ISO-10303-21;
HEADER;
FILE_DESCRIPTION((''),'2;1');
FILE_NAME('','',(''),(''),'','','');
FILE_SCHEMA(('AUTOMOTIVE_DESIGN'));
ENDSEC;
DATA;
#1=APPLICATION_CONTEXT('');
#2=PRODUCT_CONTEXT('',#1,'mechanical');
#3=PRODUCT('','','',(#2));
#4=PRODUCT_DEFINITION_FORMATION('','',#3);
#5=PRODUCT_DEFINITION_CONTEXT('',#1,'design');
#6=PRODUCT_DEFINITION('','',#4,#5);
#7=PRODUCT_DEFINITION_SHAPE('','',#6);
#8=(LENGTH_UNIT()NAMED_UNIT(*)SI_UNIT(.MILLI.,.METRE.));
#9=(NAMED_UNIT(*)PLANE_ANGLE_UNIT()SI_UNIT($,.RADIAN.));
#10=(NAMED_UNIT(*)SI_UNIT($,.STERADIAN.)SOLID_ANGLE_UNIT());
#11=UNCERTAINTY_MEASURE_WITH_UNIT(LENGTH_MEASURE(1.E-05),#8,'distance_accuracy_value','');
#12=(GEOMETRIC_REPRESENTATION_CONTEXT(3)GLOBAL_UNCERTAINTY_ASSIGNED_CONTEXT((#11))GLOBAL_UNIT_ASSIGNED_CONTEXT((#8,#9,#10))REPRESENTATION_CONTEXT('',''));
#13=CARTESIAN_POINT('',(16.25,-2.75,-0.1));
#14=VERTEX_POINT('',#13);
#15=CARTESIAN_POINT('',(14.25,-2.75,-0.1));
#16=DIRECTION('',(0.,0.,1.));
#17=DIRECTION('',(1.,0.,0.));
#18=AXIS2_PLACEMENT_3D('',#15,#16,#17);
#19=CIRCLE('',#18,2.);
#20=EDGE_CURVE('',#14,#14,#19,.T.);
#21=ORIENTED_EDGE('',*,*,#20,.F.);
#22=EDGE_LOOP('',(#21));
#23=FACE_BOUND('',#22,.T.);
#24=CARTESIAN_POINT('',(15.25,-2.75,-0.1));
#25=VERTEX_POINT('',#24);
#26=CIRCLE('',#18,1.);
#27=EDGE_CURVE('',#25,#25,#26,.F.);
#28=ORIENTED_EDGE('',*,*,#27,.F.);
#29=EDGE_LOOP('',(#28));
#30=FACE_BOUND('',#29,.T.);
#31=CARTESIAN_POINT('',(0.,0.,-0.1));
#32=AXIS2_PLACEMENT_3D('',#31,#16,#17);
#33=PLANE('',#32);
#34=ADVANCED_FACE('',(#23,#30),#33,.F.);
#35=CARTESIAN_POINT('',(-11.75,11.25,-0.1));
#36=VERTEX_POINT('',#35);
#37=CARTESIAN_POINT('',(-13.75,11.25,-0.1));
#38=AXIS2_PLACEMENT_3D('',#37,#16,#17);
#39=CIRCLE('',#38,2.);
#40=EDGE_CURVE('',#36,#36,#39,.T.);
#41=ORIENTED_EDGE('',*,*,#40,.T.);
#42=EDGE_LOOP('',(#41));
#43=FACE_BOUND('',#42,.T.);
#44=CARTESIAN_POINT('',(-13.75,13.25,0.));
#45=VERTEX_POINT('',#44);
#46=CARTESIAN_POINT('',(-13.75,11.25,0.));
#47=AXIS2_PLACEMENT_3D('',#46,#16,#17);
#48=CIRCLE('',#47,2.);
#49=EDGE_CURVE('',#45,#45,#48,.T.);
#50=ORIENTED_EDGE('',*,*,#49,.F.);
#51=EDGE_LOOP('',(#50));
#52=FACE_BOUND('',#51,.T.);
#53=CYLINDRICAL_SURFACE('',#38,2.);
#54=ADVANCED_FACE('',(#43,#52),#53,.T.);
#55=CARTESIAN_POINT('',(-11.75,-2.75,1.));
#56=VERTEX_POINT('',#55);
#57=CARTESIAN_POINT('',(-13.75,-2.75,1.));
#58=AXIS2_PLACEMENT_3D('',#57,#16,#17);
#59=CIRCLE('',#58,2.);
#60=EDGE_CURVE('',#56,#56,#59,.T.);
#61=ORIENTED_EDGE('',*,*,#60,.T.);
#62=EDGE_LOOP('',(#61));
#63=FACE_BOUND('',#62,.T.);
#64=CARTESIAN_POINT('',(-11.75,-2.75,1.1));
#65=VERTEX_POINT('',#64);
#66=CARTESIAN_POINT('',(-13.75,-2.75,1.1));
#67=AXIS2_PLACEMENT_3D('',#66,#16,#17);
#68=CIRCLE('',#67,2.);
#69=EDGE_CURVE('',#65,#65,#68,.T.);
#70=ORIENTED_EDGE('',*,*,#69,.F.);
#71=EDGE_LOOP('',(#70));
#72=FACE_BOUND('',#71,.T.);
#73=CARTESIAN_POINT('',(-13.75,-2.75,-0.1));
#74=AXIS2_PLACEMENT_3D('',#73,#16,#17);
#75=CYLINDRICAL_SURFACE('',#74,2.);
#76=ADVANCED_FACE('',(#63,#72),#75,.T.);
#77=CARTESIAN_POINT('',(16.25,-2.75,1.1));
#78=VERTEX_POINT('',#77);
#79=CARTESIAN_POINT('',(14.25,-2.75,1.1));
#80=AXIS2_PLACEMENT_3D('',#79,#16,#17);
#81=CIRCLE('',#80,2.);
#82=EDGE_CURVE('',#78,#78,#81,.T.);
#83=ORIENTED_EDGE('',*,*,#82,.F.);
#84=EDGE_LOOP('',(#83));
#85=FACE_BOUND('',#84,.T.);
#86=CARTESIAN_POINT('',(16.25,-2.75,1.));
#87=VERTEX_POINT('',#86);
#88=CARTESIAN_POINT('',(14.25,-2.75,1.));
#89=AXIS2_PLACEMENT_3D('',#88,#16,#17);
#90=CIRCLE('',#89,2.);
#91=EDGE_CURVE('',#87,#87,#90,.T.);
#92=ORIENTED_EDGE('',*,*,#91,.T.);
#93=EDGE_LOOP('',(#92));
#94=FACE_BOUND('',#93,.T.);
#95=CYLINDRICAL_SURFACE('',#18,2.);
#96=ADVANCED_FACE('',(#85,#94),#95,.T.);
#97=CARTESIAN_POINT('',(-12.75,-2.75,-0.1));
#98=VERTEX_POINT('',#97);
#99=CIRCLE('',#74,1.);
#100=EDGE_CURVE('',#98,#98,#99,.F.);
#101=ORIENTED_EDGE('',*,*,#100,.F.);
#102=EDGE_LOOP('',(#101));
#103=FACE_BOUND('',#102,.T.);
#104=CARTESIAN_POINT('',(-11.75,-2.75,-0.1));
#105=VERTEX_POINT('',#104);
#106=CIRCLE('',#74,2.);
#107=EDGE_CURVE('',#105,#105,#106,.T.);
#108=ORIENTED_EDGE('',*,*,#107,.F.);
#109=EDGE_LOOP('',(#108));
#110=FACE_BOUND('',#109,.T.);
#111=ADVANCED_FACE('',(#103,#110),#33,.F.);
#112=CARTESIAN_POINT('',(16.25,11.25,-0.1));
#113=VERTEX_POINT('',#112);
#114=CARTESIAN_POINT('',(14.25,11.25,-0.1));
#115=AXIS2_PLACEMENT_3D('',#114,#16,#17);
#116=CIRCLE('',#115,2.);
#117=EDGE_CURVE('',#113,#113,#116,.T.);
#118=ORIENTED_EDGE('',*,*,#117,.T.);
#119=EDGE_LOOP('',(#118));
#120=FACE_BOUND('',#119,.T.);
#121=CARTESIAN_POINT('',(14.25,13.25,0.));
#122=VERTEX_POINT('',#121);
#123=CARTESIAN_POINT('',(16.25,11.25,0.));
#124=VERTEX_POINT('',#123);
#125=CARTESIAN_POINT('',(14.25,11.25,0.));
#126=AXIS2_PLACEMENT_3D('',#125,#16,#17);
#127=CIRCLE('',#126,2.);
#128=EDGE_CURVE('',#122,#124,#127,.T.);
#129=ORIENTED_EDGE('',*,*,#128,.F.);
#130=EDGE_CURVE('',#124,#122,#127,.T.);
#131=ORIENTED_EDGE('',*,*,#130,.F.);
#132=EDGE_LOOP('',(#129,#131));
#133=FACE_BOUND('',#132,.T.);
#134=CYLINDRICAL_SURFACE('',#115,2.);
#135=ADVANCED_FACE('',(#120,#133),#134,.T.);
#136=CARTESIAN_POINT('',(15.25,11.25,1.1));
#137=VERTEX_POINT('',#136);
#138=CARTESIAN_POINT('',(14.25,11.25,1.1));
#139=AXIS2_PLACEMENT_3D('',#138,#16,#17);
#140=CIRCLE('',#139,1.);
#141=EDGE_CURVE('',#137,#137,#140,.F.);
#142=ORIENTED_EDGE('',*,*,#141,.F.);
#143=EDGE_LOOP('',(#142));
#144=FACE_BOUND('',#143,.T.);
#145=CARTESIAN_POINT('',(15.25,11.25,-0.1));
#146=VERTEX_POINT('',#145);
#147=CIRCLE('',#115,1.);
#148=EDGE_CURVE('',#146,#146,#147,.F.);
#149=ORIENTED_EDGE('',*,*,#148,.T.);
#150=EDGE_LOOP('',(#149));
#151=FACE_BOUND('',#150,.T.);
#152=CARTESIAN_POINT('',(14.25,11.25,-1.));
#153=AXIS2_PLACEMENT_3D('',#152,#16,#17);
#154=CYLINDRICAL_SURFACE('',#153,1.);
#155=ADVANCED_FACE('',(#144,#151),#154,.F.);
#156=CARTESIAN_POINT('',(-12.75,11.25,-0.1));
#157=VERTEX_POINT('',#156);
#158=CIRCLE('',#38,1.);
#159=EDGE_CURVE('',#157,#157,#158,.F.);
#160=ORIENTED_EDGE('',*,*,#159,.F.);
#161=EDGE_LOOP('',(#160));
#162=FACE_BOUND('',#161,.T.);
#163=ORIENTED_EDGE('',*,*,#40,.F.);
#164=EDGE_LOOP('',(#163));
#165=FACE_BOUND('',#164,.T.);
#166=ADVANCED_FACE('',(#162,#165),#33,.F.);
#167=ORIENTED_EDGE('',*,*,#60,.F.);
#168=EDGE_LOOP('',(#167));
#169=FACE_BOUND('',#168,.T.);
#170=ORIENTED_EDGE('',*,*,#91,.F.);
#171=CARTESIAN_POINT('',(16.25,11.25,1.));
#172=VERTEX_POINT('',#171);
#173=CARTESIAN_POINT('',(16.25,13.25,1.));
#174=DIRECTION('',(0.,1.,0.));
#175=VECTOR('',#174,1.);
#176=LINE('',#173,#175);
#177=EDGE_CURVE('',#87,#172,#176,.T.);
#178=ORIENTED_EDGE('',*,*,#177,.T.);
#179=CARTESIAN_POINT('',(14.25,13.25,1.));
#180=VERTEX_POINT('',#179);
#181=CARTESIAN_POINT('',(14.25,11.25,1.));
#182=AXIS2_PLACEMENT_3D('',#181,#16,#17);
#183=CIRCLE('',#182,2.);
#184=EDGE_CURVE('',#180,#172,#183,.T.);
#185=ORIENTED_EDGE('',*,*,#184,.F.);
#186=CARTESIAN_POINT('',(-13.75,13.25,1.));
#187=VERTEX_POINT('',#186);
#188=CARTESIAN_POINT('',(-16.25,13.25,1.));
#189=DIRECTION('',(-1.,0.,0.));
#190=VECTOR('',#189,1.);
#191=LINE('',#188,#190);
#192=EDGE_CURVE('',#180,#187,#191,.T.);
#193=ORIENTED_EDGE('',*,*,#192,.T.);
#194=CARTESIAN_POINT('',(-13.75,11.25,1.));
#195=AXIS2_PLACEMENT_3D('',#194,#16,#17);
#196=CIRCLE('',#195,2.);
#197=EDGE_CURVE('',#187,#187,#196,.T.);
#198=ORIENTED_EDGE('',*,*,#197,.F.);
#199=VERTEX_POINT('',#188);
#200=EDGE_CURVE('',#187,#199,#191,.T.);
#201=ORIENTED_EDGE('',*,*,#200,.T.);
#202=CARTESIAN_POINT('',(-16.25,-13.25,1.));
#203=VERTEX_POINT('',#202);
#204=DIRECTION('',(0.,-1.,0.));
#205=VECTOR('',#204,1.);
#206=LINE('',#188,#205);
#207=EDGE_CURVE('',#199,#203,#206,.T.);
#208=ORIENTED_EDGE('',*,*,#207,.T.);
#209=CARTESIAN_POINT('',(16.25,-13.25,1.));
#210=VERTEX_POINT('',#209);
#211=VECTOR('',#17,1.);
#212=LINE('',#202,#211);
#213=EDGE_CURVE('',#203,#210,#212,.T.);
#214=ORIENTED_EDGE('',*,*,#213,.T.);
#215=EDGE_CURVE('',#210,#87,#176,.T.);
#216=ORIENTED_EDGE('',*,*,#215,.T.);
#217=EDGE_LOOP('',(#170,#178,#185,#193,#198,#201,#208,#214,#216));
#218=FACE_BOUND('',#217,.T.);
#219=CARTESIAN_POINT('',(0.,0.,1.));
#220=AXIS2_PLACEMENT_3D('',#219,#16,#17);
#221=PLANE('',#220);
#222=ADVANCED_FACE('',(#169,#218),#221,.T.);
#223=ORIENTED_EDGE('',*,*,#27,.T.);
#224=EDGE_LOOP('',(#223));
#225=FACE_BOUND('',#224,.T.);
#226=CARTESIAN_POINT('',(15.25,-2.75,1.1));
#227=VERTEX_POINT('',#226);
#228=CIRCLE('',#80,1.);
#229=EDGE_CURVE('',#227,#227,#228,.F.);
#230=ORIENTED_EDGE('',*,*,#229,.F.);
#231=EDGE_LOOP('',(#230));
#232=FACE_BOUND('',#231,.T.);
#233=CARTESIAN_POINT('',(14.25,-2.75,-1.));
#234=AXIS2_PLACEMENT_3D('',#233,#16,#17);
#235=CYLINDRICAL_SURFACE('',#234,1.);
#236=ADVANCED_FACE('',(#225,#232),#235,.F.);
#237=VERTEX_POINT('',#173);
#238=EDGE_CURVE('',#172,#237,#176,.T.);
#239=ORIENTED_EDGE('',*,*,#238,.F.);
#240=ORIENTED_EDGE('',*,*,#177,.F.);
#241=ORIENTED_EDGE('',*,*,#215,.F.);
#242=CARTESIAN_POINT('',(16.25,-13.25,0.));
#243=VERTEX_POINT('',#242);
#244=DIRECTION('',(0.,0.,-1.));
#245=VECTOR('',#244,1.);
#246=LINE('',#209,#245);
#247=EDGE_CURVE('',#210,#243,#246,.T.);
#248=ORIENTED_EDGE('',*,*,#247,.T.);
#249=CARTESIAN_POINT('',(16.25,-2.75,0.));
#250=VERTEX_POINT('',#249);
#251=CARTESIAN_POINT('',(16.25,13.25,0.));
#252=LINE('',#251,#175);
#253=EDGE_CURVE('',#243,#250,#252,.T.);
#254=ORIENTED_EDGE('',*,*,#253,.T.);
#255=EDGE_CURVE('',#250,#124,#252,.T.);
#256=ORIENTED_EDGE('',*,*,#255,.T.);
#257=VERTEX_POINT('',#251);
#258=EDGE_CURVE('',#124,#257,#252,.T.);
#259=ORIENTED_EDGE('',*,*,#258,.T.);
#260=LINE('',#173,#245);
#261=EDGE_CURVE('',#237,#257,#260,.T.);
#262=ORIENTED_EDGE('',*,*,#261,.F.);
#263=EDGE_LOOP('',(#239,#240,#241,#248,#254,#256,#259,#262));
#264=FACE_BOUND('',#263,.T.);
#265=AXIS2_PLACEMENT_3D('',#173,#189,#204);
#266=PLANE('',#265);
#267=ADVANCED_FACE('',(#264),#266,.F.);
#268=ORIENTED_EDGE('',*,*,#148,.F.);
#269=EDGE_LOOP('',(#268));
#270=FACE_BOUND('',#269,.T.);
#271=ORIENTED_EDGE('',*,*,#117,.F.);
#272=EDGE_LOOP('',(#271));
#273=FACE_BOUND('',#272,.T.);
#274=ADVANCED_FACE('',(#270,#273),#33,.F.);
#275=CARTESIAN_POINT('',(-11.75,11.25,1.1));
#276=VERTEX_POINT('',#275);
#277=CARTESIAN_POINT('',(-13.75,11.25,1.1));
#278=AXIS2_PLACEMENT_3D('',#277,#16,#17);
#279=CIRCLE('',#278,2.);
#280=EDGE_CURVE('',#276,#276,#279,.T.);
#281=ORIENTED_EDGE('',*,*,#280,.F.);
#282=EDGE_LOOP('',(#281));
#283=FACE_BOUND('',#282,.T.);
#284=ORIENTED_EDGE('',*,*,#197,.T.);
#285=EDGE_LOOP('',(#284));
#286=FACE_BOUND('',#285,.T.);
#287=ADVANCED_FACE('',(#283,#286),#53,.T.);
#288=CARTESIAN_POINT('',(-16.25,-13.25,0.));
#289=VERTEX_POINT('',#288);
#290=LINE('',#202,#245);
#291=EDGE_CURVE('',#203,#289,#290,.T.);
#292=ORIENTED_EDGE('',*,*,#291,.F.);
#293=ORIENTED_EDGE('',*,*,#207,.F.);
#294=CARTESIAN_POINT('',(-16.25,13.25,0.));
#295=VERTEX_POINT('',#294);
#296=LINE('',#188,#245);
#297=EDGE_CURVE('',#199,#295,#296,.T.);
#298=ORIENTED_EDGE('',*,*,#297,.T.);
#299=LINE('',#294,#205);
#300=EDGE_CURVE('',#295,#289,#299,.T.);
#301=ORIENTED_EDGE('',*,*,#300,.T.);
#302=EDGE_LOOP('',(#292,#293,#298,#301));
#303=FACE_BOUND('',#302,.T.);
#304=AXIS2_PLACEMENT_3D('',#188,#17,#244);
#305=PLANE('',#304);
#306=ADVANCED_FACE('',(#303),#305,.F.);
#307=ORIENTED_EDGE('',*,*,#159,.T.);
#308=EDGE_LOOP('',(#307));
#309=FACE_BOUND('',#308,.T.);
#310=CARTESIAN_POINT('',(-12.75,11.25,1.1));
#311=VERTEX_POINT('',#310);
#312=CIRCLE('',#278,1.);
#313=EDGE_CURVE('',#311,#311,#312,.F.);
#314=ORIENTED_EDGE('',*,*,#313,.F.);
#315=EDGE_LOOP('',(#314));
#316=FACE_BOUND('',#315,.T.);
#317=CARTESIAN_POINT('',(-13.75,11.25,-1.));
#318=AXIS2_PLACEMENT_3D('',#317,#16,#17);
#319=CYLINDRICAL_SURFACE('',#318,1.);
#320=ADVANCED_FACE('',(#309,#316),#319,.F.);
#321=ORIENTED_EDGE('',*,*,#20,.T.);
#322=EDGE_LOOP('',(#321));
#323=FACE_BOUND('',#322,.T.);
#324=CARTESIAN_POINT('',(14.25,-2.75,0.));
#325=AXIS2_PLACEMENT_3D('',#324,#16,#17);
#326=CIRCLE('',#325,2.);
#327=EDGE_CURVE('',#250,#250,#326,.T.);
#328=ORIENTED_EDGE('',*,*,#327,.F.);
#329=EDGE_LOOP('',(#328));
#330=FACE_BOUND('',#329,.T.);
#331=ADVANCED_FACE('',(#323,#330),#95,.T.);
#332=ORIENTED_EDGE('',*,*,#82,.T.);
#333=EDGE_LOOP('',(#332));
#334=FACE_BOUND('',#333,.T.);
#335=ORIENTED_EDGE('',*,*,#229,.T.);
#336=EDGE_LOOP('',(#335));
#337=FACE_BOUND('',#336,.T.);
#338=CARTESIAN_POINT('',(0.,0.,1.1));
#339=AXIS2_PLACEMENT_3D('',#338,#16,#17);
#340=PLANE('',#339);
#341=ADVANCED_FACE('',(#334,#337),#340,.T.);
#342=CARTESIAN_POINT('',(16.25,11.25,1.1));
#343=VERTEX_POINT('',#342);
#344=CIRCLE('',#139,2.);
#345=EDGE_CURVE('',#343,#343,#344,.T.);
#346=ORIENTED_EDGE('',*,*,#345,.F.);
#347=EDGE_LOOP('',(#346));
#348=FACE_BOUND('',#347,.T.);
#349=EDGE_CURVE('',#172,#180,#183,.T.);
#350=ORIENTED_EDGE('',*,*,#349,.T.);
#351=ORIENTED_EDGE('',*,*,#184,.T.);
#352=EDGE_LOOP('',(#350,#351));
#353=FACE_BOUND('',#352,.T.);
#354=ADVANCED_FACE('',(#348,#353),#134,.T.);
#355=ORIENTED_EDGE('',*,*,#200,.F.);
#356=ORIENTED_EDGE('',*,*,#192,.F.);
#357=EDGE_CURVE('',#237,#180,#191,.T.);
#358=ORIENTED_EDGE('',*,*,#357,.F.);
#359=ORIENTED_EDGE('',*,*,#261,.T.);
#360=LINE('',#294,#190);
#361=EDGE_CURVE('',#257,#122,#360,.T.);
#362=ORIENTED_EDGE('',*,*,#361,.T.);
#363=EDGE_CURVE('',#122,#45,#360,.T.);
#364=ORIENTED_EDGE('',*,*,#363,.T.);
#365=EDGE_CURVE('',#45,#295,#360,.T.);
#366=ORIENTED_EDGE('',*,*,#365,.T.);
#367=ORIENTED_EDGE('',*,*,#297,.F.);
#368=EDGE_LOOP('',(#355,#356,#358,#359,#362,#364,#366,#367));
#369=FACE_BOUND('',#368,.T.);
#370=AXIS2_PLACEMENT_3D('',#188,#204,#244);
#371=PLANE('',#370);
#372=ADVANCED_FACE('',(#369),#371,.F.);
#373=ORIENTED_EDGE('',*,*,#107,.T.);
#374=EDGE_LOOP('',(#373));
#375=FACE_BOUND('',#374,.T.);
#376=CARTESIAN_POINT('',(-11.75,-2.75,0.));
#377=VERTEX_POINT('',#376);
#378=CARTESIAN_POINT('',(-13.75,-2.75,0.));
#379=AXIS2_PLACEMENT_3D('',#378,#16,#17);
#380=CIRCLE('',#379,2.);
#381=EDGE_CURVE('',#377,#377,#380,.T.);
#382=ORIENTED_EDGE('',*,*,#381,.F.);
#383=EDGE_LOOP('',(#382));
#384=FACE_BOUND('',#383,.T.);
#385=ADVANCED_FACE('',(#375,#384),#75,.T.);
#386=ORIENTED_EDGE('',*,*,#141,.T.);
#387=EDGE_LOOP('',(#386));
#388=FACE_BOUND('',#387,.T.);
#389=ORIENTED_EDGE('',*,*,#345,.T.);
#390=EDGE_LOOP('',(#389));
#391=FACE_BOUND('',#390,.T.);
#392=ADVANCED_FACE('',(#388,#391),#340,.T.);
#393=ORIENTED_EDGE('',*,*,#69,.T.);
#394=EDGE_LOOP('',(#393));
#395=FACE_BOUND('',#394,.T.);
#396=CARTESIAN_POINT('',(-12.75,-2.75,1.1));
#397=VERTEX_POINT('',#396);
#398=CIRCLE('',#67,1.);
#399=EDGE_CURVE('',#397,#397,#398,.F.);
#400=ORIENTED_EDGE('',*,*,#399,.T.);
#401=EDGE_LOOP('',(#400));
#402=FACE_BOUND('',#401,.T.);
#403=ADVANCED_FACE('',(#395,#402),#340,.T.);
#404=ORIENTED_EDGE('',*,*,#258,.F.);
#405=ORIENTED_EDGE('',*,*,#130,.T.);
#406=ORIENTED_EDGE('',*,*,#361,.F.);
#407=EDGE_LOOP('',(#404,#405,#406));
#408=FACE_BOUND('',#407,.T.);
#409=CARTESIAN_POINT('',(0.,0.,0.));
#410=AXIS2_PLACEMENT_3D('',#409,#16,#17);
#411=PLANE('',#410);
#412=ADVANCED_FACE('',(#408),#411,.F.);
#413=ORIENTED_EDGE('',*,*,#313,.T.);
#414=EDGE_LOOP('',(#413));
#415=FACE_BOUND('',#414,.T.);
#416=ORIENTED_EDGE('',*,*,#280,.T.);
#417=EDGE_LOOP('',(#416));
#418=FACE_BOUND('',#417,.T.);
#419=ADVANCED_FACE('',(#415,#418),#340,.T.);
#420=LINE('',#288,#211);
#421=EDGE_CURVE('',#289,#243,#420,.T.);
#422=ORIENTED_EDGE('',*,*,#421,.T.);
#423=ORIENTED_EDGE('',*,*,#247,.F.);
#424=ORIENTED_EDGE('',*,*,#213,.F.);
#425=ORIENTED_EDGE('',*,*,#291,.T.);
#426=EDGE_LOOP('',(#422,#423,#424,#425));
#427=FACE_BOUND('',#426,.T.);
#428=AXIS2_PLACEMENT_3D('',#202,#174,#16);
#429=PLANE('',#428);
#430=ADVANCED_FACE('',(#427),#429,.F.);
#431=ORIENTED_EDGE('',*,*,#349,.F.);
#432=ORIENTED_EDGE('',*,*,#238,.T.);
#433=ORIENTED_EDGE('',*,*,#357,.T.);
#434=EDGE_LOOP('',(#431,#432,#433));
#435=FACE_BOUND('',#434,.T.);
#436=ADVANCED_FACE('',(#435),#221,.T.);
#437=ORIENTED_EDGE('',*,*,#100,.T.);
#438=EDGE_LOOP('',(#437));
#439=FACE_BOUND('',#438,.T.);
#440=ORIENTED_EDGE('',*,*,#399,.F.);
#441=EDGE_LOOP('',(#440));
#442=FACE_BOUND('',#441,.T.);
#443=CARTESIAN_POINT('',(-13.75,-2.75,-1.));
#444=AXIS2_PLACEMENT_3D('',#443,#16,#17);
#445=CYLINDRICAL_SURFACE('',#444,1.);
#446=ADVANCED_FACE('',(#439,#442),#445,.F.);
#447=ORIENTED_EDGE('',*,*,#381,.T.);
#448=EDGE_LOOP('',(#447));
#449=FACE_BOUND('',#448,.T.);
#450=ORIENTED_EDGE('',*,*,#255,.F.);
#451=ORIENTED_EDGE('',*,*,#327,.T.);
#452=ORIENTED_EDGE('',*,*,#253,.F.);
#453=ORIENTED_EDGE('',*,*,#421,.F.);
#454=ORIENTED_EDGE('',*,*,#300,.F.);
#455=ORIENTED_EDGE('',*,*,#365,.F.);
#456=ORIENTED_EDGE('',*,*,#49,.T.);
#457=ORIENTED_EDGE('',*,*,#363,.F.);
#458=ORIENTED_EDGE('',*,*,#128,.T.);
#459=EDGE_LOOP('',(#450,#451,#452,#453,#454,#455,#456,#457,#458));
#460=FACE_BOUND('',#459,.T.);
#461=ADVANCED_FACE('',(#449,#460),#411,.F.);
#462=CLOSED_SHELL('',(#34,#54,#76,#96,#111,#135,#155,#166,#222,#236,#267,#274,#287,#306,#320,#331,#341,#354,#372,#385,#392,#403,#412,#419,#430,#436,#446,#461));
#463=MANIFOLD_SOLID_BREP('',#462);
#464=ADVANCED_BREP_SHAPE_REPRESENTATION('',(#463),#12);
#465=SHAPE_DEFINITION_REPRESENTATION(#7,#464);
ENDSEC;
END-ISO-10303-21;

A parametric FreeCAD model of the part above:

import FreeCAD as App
import Part
import Sketcher

V = App.Vector
Q = App.Units.Quantity

doc = App.newDocument("Part")
body = doc.addObject("PartDesign::Body", "Body")

sketch1 = doc.addObject("Sketcher::SketchObject", "Sketch")
body.addObject(sketch1)
sketch1.AttachmentSupport = (doc.XY_Plane, [""])
sketch1.MapMode = "FlatFace"
sketch1.addGeometry([
    Part.LineSegment(V(-16, 13, 0), V(-16, -13, 0)),
    Part.LineSegment(V(-16, -13, 0), V(16, -13, 0)),
    Part.LineSegment(V(16, -13, 0), V(16, 13, 0)),
    Part.LineSegment(V(16, 13, 0), V(-16, 13, 0)),
], False)
sketch1.addConstraint([
    Sketcher.Constraint("Coincident", 0, 2, 1, 1),
    Sketcher.Constraint("Coincident", 1, 2, 2, 1),
    Sketcher.Constraint("Coincident", 2, 2, 3, 1),
    Sketcher.Constraint("Coincident", 3, 2, 0, 1),
    Sketcher.Constraint("Vertical", 0),
    Sketcher.Constraint("Horizontal", 1),
    Sketcher.Constraint("Vertical", 2),
    Sketcher.Constraint("Horizontal", 3),
    Sketcher.Constraint("Symmetric", 0, 2, 2, 2, -1, 1),
    Sketcher.Constraint("DistanceX", 1, 1, 1, 2, Q("32.5 mm")),
    Sketcher.Constraint("DistanceY", 0, 2, 0, 1, Q("26.5 mm")),
])
pad1 = doc.addObject("PartDesign::Pad", "Pad")
body.addObject(pad1)
pad1.Profile = sketch1
pad1.Length = 1

sketch2 = doc.addObject("Sketcher::SketchObject", "Sketch001")
body.addObject(sketch2)
sketch2.AttachmentSupport = (doc.XY_Plane, [""])
sketch2.MapMode = "FlatFace"
sketch2.AttachmentOffset = App.Placement(V(0, 0, 1), App.Rotation())
sketch2.addGeometry([
    Part.Circle(V(-13.8, 11.2, 0), V(0, 0, 1), 1),
    Part.Circle(V(-13.8, -2.8, 0), V(0, 0, 1), 1),
    Part.Circle(V(14.2, -2.8, 0), V(0, 0, 1), 1),
    Part.Circle(V(14.2, 11.2, 0), V(0, 0, 1), 1),
], False)
sketch2.addConstraint([
    Sketcher.Constraint("Equal", 0, 1),
    Sketcher.Constraint("Equal", 1, 2),
    Sketcher.Constraint("Equal", 2, 3),
    Sketcher.Constraint("Horizontal", 1, 3, 2, 3),
    Sketcher.Constraint("Horizontal", 0, 3, 3, 3),
    Sketcher.Constraint("Vertical", 0, 3, 1, 3),
    Sketcher.Constraint("Vertical", 2, 3, 3, 3),
    Sketcher.Constraint("Diameter", 0, Q("2 mm")),
    Sketcher.Constraint("DistanceY", 1, 3, 0, 3, Q("14 mm")),
    Sketcher.Constraint("DistanceX", 1, 3, 2, 3, Q("28 mm")),
    Sketcher.Constraint("DistanceX", 0, 3, -1, 1, Q("13.75 mm")),
    Sketcher.Constraint("DistanceY", -1, 1, 0, 3, Q("11.25 mm")),
])
pocket1 = doc.addObject("PartDesign::Pocket", "Pocket")
body.addObject(pocket1)
pocket1.Profile = sketch2
pocket1.Length = 2

sketch3 = doc.addObject("Sketcher::SketchObject", "Sketch002")
body.addObject(sketch3)
sketch3.AttachmentSupport = (doc.XY_Plane, [""])
sketch3.MapMode = "FlatFace"
sketch3.AttachmentOffset = App.Placement(V(0, 0, 1), App.Rotation())
sketch3.addGeometry([
    Part.Circle(V(-13.8, 11.2, 0), V(0, 0, 1), 2),
    Part.Circle(V(-13.8, 11.2, 0), V(0, 0, 1), 1),
    Part.Circle(V(14.2, 11.2, 0), V(0, 0, 1), 2),
    Part.Circle(V(14.2, 11.2, 0), V(0, 0, 1), 1),
    Part.Circle(V(14.2, -2.8, 0), V(0, 0, 1), 2),
    Part.Circle(V(14.2, -2.8, 0), V(0, 0, 1), 1),
    Part.Circle(V(-13.8, -2.8, 0), V(0, 0, 1), 2),
    Part.Circle(V(-13.8, -2.8, 0), V(0, 0, 1), 1),
], False)
sketch3.addConstraint([
    Sketcher.Constraint("Coincident", 1, 3, 0, 3),
    Sketcher.Constraint("Coincident", 3, 3, 2, 3),
    Sketcher.Constraint("Coincident", 5, 3, 4, 3),
    Sketcher.Constraint("Coincident", 7, 3, 6, 3),
    Sketcher.Constraint("Equal", 0, 2),
    Sketcher.Constraint("Equal", 1, 3),
    Sketcher.Constraint("Equal", 2, 4),
    Sketcher.Constraint("Equal", 3, 5),
    Sketcher.Constraint("Equal", 4, 6),
    Sketcher.Constraint("Equal", 5, 7),
    Sketcher.Constraint("Horizontal", 1, 3, 2, 3),
    Sketcher.Constraint("Horizontal", 5, 3, 6, 3),
    Sketcher.Constraint("Vertical", 3, 3, 4, 3),
    Sketcher.Constraint("Vertical", 1, 3, 6, 3),
    Sketcher.Constraint("Diameter", 0, Q("4 mm")),
    Sketcher.Constraint("Diameter", 1, Q("2 mm")),
    Sketcher.Constraint("DistanceX", 0, 3, 2, 3, Q("28 mm")),
    Sketcher.Constraint("DistanceY", 4, 3, 2, 3, Q("14 mm")),
    Sketcher.Constraint("DistanceX", 0, 3, -1, 1, Q("13.75 mm")),
    Sketcher.Constraint("DistanceY", -1, 1, 0, 3, Q("11.25 mm")),
])
pad2 = doc.addObject("PartDesign::Pad", "Pad001")
body.addObject(pad2)
pad2.Profile = sketch3
pad2.Type = "TwoLengths"
pad2.Length = 0.1
pad2.Length2 = 1.1

doc.recompute()
